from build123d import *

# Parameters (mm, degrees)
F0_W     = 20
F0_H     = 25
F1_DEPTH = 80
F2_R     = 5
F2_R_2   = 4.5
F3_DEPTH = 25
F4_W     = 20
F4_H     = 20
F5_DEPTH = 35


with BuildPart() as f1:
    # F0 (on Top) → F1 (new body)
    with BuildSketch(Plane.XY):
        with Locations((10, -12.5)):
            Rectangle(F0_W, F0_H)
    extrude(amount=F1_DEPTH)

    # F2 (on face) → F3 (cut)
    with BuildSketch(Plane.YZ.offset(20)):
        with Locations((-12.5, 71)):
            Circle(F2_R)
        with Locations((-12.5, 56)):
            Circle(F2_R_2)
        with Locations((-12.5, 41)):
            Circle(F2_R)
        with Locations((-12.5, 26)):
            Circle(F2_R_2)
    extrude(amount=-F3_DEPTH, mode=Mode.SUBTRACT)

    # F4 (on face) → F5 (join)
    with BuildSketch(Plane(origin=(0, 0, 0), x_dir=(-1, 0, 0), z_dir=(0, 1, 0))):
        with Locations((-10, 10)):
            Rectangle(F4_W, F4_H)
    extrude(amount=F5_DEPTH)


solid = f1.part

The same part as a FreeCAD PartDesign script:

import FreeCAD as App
import Part
import Sketcher

V = App.Vector
Q = App.Units.Quantity

doc = App.newDocument("Part")
body = doc.addObject("PartDesign::Body", "Body")

sketch1 = body.newObject("Sketcher::SketchObject", "Sketch")
sketch1.AttachmentSupport = (doc.getObject("XY_Plane"), [""])
sketch1.MapMode = "FlatFace"
sketch1.addGeometry([
    Part.LineSegment(V(0, 0, 0), V(0, -25, 0)),
    Part.LineSegment(V(0, -25, 0), V(20, -25, 0)),
    Part.LineSegment(V(20, -25, 0), V(20, 0, 0)),
    Part.LineSegment(V(20, 0, 0), V(0, 0, 0)),
], False)
sketch1.addConstraint([
    Sketcher.Constraint("Coincident", 0, 2, 1, 1),
    Sketcher.Constraint("Coincident", 1, 2, 2, 1),
    Sketcher.Constraint("Coincident", 2, 2, 3, 1),
    Sketcher.Constraint("Coincident", 3, 2, 0, 1),
    Sketcher.Constraint("Vertical", 0),
    Sketcher.Constraint("Horizontal", 1),
    Sketcher.Constraint("Vertical", 2),
    Sketcher.Constraint("Horizontal", 3),
    Sketcher.Constraint("Coincident", 3, 2, -1, 1),
    Sketcher.Constraint("DistanceX", 1, 1, 1, 2, Q("20 mm")),
    Sketcher.Constraint("DistanceY", 0, 2, 0, 1, Q("25 mm")),
])
pad1 = body.newObject("PartDesign::Pad", "Pad")
pad1.Profile = sketch1
pad1.Length = 80

sketch2 = body.newObject("Sketcher::SketchObject", "Sketch001")
sketch2.AttachmentSupport = (doc.getObject("YZ_Plane"), [""])
sketch2.MapMode = "FlatFace"
sketch2.AttachmentOffset = App.Placement(V(0, 0, 20), App.Rotation())
sketch2.addGeometry([
    Part.Circle(V(-12.5, 71, 0), V(0, 0, 1), 5),
    Part.Circle(V(-12.5, 56, 0), V(0, 0, 1), 4.5),
    Part.Circle(V(-12.5, 41, 0), V(0, 0, 1), 5),
    Part.Circle(V(-12.5, 26, 0), V(0, 0, 1), 4.5),
], False)
sketch2.addConstraint([
    Sketcher.Constraint("Equal", 0, 2),
    Sketcher.Constraint("Equal", 1, 3),
    Sketcher.Constraint("Vertical", 0, 3, 1, 3),
    Sketcher.Constraint("Vertical", 1, 3, 2, 3),
    Sketcher.Constraint("Vertical", 2, 3, 3, 3),
    Sketcher.Constraint("Diameter", 0, Q("10 mm")),
    Sketcher.Constraint("Diameter", 1, Q("9 mm")),
    Sketcher.Constraint("DistanceY", -1, 1, 0, 3, Q("71 mm")),
    Sketcher.Constraint("DistanceY", -1, 1, 1, 3, Q("56 mm")),
    Sketcher.Constraint("DistanceY", -1, 1, 2, 3, Q("41 mm")),
    Sketcher.Constraint("DistanceY", -1, 1, 3, 3, Q("26 mm")),
    Sketcher.Constraint("DistanceX", 0, 3, -1, 1, Q("12.5 mm")),
])
pocket1 = body.newObject("PartDesign::Pocket", "Pocket")
pocket1.Profile = sketch2
pocket1.Length = 25

sketch3 = body.newObject("Sketcher::SketchObject", "Sketch002")
sketch3.AttachmentSupport = (doc.getObject("XZ_Plane"), [""])
sketch3.MapMode = "FlatFace"
sketch3.addGeometry([
    Part.LineSegment(V(20, 20, 0), V(20, 0, 0)),
    Part.LineSegment(V(20, 0, 0), V(0, 0, 0)),
    Part.LineSegment(V(0, 0, 0), V(0, 20, 0)),
    Part.LineSegment(V(0, 20, 0), V(20, 20, 0)),
], False)
sketch3.addConstraint([
    Sketcher.Constraint("Coincident", 0, 2, 1, 1),
    Sketcher.Constraint("Coincident", 1, 2, 2, 1),
    Sketcher.Constraint("Coincident", 2, 2, 3, 1),
    Sketcher.Constraint("Coincident", 3, 2, 0, 1),
    Sketcher.Constraint("Vertical", 0),
    Sketcher.Constraint("Horizontal", 1),
    Sketcher.Constraint("Vertical", 2),
    Sketcher.Constraint("Horizontal", 3),
    Sketcher.Constraint("Coincident", 1, 2, -1, 1),
    Sketcher.Constraint("Equal", 3, 0),
    Sketcher.Constraint("DistanceX", 1, 2, 1, 1, Q("20 mm")),
])
pad2 = body.newObject("PartDesign::Pad", "Pad001")
pad2.Profile = sketch3
pad2.Length = 35
pad2.Reversed = True

doc.recompute()
